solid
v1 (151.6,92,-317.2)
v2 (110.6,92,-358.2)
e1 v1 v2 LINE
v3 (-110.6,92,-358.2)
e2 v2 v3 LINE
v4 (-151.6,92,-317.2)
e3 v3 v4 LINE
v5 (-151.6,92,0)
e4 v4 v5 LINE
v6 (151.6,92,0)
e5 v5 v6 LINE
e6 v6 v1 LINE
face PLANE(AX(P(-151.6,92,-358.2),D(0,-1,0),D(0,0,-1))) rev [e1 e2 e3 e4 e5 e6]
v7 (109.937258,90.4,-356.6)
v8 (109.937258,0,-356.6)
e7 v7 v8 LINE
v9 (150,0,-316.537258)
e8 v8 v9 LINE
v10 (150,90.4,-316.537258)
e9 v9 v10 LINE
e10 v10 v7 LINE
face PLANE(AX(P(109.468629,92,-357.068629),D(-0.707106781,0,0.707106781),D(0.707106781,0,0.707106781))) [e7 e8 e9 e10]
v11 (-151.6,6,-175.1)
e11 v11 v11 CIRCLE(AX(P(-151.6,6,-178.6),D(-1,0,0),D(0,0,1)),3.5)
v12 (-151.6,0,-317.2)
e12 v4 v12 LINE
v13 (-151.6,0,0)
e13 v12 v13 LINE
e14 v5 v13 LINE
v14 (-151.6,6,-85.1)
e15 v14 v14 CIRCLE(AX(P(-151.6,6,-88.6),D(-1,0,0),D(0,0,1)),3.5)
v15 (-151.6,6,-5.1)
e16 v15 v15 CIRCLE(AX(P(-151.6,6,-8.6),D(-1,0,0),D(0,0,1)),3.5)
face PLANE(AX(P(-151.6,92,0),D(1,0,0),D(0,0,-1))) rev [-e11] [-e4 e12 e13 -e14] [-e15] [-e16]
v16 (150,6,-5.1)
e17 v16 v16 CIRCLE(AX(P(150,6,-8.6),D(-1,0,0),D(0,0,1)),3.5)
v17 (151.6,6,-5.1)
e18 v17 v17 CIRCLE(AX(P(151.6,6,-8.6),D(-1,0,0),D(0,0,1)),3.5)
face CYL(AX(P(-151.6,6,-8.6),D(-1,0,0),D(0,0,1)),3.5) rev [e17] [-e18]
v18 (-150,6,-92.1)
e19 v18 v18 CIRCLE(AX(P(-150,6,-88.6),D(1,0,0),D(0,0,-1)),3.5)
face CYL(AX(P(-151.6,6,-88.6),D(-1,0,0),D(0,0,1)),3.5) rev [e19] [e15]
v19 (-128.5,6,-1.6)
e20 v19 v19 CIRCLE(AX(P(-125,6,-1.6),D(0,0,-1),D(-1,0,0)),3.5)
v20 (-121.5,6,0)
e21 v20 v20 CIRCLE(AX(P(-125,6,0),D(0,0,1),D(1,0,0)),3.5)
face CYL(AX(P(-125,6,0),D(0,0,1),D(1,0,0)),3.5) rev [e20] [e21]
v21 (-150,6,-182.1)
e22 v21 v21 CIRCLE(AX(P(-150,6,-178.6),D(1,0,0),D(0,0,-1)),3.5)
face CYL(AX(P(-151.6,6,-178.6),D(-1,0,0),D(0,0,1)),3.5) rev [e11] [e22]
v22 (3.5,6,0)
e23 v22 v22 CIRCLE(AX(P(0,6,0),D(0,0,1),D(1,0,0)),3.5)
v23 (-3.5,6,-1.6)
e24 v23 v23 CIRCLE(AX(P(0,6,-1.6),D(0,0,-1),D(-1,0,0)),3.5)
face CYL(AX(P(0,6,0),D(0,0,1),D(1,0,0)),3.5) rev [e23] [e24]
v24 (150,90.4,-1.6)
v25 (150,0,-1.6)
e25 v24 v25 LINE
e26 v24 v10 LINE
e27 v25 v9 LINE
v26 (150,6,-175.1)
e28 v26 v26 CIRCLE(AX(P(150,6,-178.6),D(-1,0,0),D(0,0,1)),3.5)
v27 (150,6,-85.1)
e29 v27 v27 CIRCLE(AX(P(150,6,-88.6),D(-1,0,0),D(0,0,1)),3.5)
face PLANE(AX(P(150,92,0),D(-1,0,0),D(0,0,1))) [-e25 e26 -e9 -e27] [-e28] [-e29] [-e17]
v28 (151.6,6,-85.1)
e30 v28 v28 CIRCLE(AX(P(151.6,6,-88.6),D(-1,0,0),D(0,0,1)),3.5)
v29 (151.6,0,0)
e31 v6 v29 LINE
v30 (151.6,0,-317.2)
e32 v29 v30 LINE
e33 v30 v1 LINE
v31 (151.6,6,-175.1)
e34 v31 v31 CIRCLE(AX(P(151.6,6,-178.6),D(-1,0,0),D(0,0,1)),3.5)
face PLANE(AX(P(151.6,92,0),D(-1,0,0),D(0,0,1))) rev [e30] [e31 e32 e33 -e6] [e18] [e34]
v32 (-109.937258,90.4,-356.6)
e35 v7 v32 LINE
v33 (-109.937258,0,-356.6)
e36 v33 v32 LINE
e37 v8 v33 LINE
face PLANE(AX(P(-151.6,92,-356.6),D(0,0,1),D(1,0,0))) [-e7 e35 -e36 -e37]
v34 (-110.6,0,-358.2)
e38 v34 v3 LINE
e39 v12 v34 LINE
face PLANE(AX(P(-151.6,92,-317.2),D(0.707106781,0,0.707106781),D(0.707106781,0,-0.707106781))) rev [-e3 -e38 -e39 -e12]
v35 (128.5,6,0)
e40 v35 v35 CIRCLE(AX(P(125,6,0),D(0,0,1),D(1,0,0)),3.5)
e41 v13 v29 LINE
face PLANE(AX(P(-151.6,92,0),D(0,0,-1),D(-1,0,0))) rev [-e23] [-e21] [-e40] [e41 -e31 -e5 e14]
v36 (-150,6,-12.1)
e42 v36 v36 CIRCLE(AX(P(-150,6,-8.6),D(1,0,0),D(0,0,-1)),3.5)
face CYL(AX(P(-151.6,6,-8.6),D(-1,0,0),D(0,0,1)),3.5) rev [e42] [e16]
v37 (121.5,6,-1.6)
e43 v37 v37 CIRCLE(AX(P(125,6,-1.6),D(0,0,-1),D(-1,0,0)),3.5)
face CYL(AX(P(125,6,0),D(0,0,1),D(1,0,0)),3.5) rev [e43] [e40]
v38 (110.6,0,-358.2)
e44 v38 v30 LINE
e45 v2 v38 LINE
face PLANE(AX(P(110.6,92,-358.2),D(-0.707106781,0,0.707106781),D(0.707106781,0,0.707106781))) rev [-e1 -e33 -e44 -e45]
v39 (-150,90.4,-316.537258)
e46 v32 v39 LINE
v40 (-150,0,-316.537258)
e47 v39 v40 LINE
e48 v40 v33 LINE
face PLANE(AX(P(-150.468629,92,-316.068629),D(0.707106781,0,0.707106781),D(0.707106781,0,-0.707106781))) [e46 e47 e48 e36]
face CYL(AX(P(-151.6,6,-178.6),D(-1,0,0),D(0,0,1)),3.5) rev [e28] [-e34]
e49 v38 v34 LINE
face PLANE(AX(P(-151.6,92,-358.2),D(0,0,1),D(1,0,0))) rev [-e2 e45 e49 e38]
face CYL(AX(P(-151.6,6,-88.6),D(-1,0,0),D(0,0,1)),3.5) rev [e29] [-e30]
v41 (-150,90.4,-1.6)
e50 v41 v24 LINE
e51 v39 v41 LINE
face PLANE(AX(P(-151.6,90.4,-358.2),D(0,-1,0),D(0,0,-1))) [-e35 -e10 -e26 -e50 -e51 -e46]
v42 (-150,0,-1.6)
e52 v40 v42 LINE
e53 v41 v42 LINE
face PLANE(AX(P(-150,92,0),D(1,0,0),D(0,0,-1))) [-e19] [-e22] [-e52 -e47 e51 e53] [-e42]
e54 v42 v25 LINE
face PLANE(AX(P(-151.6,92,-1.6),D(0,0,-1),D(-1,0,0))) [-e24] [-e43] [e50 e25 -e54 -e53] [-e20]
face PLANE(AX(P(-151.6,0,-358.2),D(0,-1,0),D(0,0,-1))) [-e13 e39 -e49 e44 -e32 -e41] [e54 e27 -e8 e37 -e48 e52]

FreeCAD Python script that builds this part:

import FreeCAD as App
import Part
import Sketcher

V = App.Vector
Q = App.Units.Quantity


def edges_at(feature, points):
    """Names of the edges that pass closest to the given points."""
    edges = feature.Shape.Edges
    near = lambda p: min(range(len(edges)), key=lambda i: edges[i].distToShape(Part.Vertex(*p))[0])
    return sorted({f"Edge{near(p) + 1}" for p in points})


def faces_at(feature, points):
    """Names of the faces that lie closest to the given points."""
    faces = feature.Shape.Faces
    near = lambda p: min(range(len(faces)), key=lambda i: faces[i].distToShape(Part.Vertex(*p))[0])
    return sorted({f"Face{near(p) + 1}" for p in points})

doc = App.newDocument("Part")
body = doc.addObject("PartDesign::Body", "Body")

sketch1 = body.newObject("Sketcher::SketchObject", "Sketch")
sketch1.AttachmentSupport = (doc.getObject("XZ_Plane"), [""])
sketch1.MapMode = "FlatFace"
sketch1.addGeometry([
    Part.LineSegment(V(-152, -358, 0), V(-152, 0, 0)),
    Part.LineSegment(V(-152, 0, 0), V(152, 0, 0)),
    Part.LineSegment(V(152, 0, 0), V(152, -358, 0)),
    Part.LineSegment(V(152, -358, 0), V(-152, -358, 0)),
], False)
sketch1.addConstraint([
    Sketcher.Constraint("Coincident", 0, 2, 1, 1),
    Sketcher.Constraint("Coincident", 1, 2, 2, 1),
    Sketcher.Constraint("Coincident", 2, 2, 3, 1),
    Sketcher.Constraint("Coincident", 3, 2, 0, 1),
    Sketcher.Constraint("Vertical", 0),
    Sketcher.Constraint("Horizontal", 1),
    Sketcher.Constraint("Vertical", 2),
    Sketcher.Constraint("Horizontal", 3),
    Sketcher.Constraint("Symmetric", 0, 2, 1, 2, -1, 1),
    Sketcher.Constraint("DistanceX", 1, 1, 1, 2, Q("303.2 mm")),
    Sketcher.Constraint("DistanceY", 0, 1, 0, 2, Q("358.2 mm")),
])
pad1 = body.newObject("PartDesign::Pad", "Pad")
pad1.Profile = sketch1
pad1.Length = 92
pad1.Reversed = True
doc.recompute()

chamfer = body.newObject("PartDesign::Chamfer", "Chamfer")
chamfer.Base = (pad1, edges_at(pad1, [(-151.6, 46, -358.2), (151.6, 46, -358.2)]))
chamfer.Size = 41
doc.recompute()

thickness = body.newObject("PartDesign::Thickness", "Thickness")
thickness.Base = (chamfer, faces_at(chamfer, [(0, 0, -179.1)]))
thickness.Value = 1.6
thickness.Reversed = True
thickness.Join = "Intersection"

sketch2 = body.newObject("Sketcher::SketchObject", "Sketch001")
sketch2.AttachmentSupport = (doc.getObject("XY_Plane"), [""])
sketch2.MapMode = "FlatFace"
sketch2.addGeometry([
    Part.Circle(V(-125, 6, 0), V(0, 0, 1), 3.5),
    Part.Circle(V(0, 6, 0), V(0, 0, 1), 3.5),
    Part.Circle(V(125, 6, 0), V(0, 0, 1), 3.5),
], False)
sketch2.addConstraint([
    Sketcher.Constraint("Equal", 0, 1),
    Sketcher.Constraint("Equal", 1, 2),
    Sketcher.Constraint("Symmetric", 0, 3, 2, 3, -2),
    Sketcher.Constraint("PointOnObject", 1, 3, -2),
    Sketcher.Constraint("Horizontal", 0, 3, 1, 3),
    Sketcher.Constraint("Diameter", 0, Q("7 mm")),
    Sketcher.Constraint("DistanceX", 0, 3, -1, 1, Q("125 mm")),
    Sketcher.Constraint("DistanceY", -1, 1, 0, 3, Q("6 mm")),
])
doc.recompute()
hole = body.newObject("PartDesign::Hole", "Hole")
hole.Profile = sketch2
hole.ThreadType = "None"
hole.Diameter = 7
hole.DepthType = "Dimension"
hole.Depth = 1.6
hole.DrillPoint = "Flat"

sketch3 = body.newObject("Sketcher::SketchObject", "Sketch002")
sketch3.AttachmentSupport = (doc.getObject("YZ_Plane"), [""])
sketch3.MapMode = "FlatFace"
sketch3.AttachmentOffset = App.Placement(V(0, 0, -151.6), App.Rotation())
sketch3.addGeometry([
    Part.Circle(V(6, -8.6, 0), V(0, 0, 1), 3.5),
    Part.Circle(V(6, -88.6, 0), V(0, 0, 1), 3.5),
    Part.Circle(V(6, -178.6, 0), V(0, 0, 1), 3.5),
], False)
sketch3.addConstraint([
    Sketcher.Constraint("Equal", 0, 1),
    Sketcher.Constraint("Equal", 1, 2),
    Sketcher.Constraint("Vertical", 0, 3, 1, 3),
    Sketcher.Constraint("Vertical", 1, 3, 2, 3),
    Sketcher.Constraint("Diameter", 0, Q("7 mm")),
    Sketcher.Constraint("DistanceX", -1, 1, 0, 3, Q("6 mm")),
    Sketcher.Constraint("DistanceY", 1, 3, 0, 3, Q("80 mm")),
    Sketcher.Constraint("DistanceY", 2, 3, 1, 3, Q("90 mm")),
    Sketcher.Constraint("DistanceY", 0, 3, -1, 1, Q("8.6 mm")),
])
doc.recompute()
hole2 = body.newObject("PartDesign::Hole", "Hole001")
hole2.Profile = sketch3
hole2.ThreadType = "None"
hole2.Diameter = 7
hole2.DepthType = "ThroughAll"
hole2.Reversed = True

doc.recompute()
